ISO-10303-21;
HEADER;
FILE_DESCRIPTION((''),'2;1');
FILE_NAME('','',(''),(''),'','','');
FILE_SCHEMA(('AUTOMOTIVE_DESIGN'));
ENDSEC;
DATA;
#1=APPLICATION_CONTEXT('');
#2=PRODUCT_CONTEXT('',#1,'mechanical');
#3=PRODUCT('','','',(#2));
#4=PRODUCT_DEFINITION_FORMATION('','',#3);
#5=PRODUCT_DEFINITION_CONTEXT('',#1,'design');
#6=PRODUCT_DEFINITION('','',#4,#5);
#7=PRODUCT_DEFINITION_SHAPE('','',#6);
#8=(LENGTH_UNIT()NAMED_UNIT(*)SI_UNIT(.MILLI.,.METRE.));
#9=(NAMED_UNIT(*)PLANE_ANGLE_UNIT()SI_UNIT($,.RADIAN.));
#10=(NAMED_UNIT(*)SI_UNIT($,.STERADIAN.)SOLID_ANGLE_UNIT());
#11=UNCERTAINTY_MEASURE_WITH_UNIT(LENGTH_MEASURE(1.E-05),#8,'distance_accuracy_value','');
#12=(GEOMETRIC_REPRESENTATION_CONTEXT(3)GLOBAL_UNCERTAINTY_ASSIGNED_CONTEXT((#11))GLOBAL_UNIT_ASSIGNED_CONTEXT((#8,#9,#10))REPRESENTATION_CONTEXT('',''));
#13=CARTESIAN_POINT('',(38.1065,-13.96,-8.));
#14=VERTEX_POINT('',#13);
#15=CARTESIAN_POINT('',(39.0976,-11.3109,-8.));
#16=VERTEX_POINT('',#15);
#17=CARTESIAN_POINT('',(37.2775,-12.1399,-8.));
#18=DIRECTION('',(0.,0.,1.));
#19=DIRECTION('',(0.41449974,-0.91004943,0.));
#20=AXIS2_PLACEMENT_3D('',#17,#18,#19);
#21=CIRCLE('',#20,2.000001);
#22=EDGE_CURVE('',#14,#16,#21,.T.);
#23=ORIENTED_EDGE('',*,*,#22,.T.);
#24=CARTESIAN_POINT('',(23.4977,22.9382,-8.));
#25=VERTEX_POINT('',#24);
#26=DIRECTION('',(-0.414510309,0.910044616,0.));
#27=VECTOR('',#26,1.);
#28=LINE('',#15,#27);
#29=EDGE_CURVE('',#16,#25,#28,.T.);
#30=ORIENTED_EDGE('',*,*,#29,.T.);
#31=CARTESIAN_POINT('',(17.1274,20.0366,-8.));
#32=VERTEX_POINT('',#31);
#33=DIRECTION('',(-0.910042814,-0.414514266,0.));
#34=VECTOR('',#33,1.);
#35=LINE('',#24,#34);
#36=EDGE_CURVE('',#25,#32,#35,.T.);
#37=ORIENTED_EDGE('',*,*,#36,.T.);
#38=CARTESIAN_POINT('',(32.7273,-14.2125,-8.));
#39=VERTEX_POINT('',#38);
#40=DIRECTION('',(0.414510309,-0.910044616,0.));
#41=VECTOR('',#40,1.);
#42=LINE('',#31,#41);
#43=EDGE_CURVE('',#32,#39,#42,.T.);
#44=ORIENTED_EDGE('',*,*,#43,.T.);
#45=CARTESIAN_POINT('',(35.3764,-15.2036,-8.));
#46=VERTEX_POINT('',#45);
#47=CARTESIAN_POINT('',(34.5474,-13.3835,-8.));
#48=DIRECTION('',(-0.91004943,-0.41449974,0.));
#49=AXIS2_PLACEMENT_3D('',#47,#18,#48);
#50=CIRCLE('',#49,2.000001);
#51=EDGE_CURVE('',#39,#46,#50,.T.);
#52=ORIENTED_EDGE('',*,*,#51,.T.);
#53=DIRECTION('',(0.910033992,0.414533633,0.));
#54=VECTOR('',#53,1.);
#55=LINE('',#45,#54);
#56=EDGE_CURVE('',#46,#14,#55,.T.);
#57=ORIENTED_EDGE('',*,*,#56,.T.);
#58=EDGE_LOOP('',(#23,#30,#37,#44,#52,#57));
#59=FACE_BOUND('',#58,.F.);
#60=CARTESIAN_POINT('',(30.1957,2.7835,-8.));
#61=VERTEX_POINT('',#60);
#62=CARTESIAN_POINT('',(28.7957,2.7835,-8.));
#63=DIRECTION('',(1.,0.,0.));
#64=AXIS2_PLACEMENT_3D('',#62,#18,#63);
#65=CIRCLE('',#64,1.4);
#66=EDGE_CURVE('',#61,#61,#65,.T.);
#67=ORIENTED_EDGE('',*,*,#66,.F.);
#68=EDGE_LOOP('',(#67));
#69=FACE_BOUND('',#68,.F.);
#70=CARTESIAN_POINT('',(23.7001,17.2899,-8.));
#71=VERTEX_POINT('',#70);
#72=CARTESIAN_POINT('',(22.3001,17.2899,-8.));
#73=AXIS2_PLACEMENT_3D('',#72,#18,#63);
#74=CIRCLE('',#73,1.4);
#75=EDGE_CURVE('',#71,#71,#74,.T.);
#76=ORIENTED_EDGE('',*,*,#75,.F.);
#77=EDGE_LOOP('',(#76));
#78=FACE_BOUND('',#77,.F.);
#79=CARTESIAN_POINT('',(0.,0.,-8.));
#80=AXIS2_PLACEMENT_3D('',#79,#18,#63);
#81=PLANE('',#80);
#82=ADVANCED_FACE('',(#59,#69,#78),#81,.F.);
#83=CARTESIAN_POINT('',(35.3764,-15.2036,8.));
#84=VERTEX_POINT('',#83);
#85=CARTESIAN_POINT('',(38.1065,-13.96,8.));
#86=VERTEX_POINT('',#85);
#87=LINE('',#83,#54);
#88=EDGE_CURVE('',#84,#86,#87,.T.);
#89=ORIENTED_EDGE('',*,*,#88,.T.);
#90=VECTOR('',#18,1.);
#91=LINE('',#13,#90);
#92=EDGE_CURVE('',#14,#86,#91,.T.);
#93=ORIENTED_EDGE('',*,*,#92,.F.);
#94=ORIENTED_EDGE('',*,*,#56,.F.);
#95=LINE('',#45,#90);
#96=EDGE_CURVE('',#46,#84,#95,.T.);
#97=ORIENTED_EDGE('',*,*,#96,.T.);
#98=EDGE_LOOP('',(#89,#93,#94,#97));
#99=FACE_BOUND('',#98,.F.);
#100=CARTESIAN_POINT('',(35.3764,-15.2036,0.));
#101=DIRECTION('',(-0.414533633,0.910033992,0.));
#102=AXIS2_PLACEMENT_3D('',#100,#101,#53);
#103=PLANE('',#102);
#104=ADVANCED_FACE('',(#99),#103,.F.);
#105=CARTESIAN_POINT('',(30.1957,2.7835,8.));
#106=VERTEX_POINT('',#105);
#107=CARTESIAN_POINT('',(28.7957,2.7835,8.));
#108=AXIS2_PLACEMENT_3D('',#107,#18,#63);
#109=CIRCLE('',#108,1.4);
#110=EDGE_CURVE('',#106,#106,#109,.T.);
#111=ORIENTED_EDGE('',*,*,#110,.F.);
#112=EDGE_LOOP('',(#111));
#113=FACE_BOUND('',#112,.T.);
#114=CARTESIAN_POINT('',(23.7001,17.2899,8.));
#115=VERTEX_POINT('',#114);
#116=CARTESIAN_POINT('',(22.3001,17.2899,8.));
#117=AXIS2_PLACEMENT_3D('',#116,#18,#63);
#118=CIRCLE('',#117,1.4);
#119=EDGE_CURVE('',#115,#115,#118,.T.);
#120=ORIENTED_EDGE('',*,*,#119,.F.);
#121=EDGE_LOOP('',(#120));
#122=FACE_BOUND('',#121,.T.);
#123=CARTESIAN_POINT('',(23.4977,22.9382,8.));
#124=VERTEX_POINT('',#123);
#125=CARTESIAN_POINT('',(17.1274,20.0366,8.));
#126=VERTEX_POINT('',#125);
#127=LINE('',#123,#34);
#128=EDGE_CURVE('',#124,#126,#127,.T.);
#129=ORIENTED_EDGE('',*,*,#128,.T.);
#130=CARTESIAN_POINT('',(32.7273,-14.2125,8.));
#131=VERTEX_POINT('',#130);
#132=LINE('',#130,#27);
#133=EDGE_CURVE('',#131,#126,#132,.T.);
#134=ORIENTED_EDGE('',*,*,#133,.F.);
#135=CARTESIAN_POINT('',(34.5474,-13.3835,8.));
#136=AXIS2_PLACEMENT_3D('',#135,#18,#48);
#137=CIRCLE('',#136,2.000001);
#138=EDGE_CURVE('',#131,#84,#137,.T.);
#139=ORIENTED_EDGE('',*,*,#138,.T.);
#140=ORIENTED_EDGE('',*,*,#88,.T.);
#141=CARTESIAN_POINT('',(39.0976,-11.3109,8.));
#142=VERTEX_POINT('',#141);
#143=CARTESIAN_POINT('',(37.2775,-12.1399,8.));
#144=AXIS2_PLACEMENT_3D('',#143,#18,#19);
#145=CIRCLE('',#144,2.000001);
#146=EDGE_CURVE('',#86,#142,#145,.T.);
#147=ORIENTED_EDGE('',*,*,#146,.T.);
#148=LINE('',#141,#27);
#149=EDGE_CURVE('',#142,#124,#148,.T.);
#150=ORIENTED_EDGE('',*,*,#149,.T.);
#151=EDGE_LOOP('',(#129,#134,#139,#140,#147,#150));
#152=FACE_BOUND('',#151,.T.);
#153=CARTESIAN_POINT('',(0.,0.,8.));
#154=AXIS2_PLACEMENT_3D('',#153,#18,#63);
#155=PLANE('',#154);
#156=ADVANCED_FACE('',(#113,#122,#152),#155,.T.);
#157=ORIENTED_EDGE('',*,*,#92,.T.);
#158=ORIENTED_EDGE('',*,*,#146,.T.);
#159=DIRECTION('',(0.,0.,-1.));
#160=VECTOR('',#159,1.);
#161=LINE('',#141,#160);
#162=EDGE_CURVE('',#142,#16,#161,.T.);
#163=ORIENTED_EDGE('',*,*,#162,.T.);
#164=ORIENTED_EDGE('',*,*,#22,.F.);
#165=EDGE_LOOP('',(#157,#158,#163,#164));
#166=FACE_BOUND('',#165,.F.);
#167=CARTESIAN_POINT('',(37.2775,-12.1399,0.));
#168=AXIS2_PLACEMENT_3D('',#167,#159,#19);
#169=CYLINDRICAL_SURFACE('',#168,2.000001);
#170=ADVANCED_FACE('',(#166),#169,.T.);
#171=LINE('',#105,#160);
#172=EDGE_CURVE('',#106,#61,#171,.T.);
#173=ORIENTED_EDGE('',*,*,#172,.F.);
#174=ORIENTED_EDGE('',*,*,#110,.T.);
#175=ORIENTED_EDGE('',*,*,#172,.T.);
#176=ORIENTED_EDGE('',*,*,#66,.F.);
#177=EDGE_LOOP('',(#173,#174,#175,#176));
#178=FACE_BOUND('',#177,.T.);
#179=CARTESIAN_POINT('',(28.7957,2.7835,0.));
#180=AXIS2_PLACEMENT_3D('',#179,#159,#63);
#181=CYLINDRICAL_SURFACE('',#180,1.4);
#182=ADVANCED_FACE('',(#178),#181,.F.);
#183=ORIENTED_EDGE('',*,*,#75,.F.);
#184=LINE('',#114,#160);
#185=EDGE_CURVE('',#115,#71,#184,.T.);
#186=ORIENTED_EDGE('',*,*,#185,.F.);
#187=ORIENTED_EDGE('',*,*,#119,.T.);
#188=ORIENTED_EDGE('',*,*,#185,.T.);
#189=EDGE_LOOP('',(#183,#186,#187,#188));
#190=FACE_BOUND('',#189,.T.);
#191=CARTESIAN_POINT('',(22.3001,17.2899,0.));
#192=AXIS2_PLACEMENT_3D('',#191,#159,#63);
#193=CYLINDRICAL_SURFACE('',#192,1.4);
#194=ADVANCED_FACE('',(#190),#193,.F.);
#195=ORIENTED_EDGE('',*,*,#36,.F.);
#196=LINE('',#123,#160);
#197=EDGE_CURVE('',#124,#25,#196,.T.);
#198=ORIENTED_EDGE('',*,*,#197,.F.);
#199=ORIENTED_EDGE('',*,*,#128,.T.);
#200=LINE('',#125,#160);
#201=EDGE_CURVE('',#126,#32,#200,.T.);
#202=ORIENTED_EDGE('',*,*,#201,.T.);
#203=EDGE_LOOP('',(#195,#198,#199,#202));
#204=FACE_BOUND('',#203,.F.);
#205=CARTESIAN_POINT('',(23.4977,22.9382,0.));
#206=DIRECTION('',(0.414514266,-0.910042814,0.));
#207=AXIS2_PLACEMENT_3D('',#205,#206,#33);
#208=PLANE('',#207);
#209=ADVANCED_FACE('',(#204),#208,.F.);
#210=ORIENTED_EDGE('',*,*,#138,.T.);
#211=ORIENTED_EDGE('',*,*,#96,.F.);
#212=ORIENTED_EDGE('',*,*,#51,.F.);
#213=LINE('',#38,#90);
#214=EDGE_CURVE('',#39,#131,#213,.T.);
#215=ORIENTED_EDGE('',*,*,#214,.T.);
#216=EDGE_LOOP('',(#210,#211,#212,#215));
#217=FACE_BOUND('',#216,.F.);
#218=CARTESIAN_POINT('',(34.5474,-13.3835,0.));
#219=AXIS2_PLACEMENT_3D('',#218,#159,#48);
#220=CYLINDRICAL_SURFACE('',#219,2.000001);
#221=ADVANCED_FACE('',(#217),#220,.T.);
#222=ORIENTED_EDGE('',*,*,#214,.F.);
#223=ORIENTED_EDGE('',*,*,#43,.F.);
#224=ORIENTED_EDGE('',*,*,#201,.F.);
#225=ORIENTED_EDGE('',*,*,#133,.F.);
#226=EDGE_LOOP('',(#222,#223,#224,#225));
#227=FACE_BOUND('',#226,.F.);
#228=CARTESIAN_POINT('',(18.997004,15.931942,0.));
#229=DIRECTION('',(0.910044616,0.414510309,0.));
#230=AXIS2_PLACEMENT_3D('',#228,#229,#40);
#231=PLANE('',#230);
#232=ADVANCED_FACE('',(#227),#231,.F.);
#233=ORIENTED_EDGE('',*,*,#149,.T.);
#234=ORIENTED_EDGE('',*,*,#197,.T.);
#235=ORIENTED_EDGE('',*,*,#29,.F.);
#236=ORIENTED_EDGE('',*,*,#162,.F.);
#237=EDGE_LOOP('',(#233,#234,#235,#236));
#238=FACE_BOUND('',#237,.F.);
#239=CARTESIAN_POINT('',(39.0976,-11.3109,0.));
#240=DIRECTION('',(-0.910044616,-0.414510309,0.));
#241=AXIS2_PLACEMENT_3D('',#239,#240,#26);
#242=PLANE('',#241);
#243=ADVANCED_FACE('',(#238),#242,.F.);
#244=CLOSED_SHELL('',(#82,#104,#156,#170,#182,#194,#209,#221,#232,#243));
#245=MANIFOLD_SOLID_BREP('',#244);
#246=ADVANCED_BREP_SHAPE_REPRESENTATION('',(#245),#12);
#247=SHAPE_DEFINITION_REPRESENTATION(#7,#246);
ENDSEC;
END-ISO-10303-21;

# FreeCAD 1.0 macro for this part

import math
import FreeCAD as App
import Part
import Sketcher

doc = App.newDocument("Part")
body = doc.addObject("PartDesign::Body", "Body")

# Sketch on XY plane
sketch1 = doc.addObject("Sketcher::SketchObject", "Sketch")
body.addObject(sketch1)
sketch1.AttachmentSupport = (doc.XY_Plane, [""])
sketch1.MapMode = "FlatFace"
sketch1.addGeometry(Part.ArcOfCircle(Part.Circle(App.Vector(34.5474, -13.3835, 0), App.Vector(0, 0, 1), 2.000001), math.radians(-155.512183), math.radians(-65.512183)), False)
sketch1.addGeometry(Part.LineSegment(App.Vector(35.3764, -15.2036, 0), App.Vector(38.1065, -13.96, 0)), False)
sketch1.addGeometry(Part.ArcOfCircle(Part.Circle(App.Vector(37.2775, -12.1399, 0), App.Vector(0, 0, 1), 2.000001), math.radians(-65.512183), math.radians(24.487817)), False)
sketch1.addGeometry(Part.LineSegment(App.Vector(39.0976, -11.3109, 0), App.Vector(23.4977, 22.9382, 0)), False)
sketch1.addGeometry(Part.LineSegment(App.Vector(23.4977, 22.9382, 0), App.Vector(17.1274, 20.0366, 0)), False)
sketch1.addGeometry(Part.LineSegment(App.Vector(17.1274, 20.0366, 0), App.Vector(32.7273, -14.2125, 0)), False)
sketch1.addGeometry(Part.Circle(App.Vector(22.3001, 17.2899, 0), App.Vector(0, 0, 1), 1.4), False)
sketch1.addGeometry(Part.Circle(App.Vector(28.7957, 2.7835, 0), App.Vector(0, 0, 1), 1.4), False)
sketch1.addConstraint(Sketcher.Constraint("Coincident", 0, 2, 1, 1))
sketch1.addConstraint(Sketcher.Constraint("Coincident", 1, 2, 2, 1))
sketch1.addConstraint(Sketcher.Constraint("Coincident", 2, 2, 3, 1))
sketch1.addConstraint(Sketcher.Constraint("Coincident", 3, 2, 4, 1))
sketch1.addConstraint(Sketcher.Constraint("Coincident", 4, 2, 5, 1))
sketch1.addConstraint(Sketcher.Constraint("Coincident", 5, 2, 0, 1))
sketch1.addConstraint(Sketcher.Constraint("Radius", 0, 2.0))
sketch1.addConstraint(Sketcher.Constraint("Radius", 2, 2.0))
sketch1.addConstraint(Sketcher.Constraint("Diameter", 6, 2.8))
sketch1.addConstraint(Sketcher.Constraint("Diameter", 7, 2.8))
sketch1.addConstraint(Sketcher.Constraint("Distance", 1, 3.0))
sketch1.addConstraint(Sketcher.Constraint("Distance", 4, 7.0))
sketch1.addConstraint(Sketcher.Constraint("DistanceX", -1, 1, 6, 3, 22.3))
sketch1.addConstraint(Sketcher.Constraint("DistanceX", 3, 2, 2, 2, 15.6))
sketch1.addConstraint(Sketcher.Constraint("DistanceY", 2, 3, -1, 1, 12.14))
sketch1.addConstraint(Sketcher.Constraint("DistanceY", -1, 1, 6, 3, 17.29))
sketch1.addConstraint(Sketcher.Constraint("DistanceY", 1, 2, -1, 1, 13.96))
sketch1.addConstraint(Sketcher.Constraint("DistanceX", 0, 3, 2, 3, 2.73))
sketch1.addConstraint(Sketcher.Constraint("DistanceY", 0, 2, 0, 3, 1.82))
sketch1.addConstraint(Sketcher.Constraint("DistanceX", 2, 3, 2, 2, 1.82))
sketch1.addConstraint(Sketcher.Constraint("DistanceX", 4, 2, 0, 3, 17.42))
sketch1.addConstraint(Sketcher.Constraint("DistanceY", 0, 3, 4, 2, 33.42))
sketch1.addConstraint(Sketcher.Constraint("DistanceX", 5, 2, 0, 3, 1.82))
sketch1.addConstraint(Sketcher.Constraint("DistanceY", 0, 3, 7, 3, 16.167))
sketch1.addConstraint(Sketcher.Constraint("DistanceX", 7, 3, 2, 2, 10.302))
sketch1.addConstraint(Sketcher.Constraint("DistanceX", -1, 1, 0, 3, 34.5474))
pad1 = doc.addObject("PartDesign::Pad", "Pad")
body.addObject(pad1)
pad1.Profile = sketch1
pad1.Length = 16
pad1.Midplane = True

doc.recompute()
